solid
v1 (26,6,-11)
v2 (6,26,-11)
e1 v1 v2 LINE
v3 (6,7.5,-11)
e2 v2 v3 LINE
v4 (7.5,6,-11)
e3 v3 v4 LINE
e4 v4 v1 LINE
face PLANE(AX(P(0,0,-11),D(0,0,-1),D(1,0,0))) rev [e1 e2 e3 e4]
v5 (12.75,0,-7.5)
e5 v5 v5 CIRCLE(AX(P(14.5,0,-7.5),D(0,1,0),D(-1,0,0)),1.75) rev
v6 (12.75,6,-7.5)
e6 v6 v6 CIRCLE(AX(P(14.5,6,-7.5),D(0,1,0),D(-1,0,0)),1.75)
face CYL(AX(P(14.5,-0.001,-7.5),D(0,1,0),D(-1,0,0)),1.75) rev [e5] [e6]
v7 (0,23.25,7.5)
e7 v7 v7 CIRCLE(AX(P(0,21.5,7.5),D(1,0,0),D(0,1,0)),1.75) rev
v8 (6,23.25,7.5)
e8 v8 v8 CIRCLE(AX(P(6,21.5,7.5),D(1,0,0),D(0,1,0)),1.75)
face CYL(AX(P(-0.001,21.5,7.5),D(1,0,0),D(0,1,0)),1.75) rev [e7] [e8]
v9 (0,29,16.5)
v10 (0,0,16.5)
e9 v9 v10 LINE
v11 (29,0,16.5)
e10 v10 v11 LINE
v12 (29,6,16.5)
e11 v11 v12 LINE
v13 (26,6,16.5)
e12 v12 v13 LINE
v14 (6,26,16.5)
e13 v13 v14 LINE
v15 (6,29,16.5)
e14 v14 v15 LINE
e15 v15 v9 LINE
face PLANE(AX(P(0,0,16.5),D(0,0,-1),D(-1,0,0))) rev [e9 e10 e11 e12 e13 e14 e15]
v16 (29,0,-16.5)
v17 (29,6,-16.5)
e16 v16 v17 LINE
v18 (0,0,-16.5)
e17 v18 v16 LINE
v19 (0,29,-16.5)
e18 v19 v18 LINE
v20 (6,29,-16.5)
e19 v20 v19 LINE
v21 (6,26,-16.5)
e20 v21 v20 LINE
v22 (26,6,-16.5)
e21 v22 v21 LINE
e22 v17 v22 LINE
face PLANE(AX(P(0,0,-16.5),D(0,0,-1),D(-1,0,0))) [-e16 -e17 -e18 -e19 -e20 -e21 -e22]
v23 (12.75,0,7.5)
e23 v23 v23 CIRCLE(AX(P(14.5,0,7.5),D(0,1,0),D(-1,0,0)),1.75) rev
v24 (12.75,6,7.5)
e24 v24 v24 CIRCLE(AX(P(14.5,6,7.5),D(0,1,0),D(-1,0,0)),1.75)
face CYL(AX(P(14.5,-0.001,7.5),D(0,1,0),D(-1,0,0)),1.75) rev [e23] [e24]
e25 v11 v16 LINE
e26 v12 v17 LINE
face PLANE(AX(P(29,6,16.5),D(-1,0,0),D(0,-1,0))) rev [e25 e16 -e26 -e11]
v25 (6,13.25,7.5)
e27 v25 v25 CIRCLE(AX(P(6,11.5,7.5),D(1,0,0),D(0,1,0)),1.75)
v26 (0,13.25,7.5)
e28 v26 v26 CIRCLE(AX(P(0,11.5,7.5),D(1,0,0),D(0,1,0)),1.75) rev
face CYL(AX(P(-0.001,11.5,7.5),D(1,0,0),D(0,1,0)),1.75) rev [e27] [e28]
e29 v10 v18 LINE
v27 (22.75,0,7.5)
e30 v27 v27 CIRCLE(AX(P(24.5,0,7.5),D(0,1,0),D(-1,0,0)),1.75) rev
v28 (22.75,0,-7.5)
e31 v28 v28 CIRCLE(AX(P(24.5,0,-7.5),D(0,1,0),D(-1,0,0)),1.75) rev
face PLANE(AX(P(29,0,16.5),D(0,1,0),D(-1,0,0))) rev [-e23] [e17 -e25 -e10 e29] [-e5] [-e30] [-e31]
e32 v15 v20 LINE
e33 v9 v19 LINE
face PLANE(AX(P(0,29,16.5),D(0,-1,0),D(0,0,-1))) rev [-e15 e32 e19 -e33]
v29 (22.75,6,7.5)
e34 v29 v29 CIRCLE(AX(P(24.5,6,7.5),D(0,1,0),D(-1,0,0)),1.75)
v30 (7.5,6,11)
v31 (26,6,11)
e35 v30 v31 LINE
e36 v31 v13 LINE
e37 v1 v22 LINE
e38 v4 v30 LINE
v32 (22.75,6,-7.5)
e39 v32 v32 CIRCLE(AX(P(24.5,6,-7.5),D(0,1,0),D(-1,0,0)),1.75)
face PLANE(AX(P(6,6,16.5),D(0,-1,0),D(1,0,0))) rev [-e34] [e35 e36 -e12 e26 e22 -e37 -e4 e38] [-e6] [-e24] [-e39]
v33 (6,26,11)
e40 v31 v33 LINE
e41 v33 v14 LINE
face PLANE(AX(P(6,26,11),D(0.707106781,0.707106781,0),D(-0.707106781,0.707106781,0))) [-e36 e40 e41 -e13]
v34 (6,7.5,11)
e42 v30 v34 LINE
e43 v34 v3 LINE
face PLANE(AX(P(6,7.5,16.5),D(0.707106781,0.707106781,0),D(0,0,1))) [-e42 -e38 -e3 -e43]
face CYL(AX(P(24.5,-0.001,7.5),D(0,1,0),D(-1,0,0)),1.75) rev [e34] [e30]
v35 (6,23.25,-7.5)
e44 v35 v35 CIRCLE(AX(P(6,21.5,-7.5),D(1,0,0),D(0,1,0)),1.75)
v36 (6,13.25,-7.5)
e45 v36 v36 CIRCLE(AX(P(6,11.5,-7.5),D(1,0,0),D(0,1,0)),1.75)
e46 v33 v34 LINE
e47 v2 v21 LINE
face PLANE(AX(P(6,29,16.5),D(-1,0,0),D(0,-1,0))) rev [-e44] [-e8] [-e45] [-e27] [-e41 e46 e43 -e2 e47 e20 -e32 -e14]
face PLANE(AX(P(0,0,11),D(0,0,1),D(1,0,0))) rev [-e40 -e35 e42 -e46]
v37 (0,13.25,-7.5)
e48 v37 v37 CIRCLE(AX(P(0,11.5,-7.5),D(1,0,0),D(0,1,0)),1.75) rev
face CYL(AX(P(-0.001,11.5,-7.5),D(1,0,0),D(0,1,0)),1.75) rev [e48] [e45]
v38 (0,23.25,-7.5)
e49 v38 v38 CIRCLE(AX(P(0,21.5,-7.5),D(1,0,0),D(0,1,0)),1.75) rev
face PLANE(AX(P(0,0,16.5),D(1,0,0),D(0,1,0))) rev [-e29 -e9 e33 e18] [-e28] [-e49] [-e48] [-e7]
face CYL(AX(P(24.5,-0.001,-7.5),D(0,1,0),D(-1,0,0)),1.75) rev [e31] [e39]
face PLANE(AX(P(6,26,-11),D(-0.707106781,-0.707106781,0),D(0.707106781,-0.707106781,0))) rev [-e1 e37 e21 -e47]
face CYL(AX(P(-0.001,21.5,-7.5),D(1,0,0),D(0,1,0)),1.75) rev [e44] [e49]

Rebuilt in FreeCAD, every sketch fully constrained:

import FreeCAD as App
import Part
import Sketcher
from FreeCAD import Vector
Q = App.Units.Quantity


def edges_at(feature, points):
    """Names of the edges that pass closest to the given points."""
    edges = feature.Shape.Edges
    near = lambda p: min(range(len(edges)), key=lambda i: edges[i].distToShape(Part.Vertex(*p))[0])
    return sorted({f"Edge{near(p) + 1}" for p in points})


def add_polygon(sketch, points):
    """Adds a closed chain of lines whose ends are joined by coincident constraints."""
    first, n = sketch.GeometryCount, len(points)
    for a, b in zip(points, points[1:] + points[:1]):
        sketch.addGeometry(Part.LineSegment(App.Vector(*a, 0), App.Vector(*b, 0)), False)
    for i in range(n):
        sketch.addConstraint(Sketcher.Constraint("Coincident", first + i, 2, first + (i + 1) % n, 1))

doc = App.newDocument("Part")
body = doc.addObject("PartDesign::Body", "Body")

sketch1 = body.newObject("Sketcher::SketchObject", "Sketch")
sketch1.AttachmentSupport = (doc.getObject("XY_Plane"), [""])
sketch1.MapMode = "FlatFace"
add_polygon(sketch1, [(0, 29), (0, 0), (29, 0), (29, 6), (6, 6), (6, 29)])
sketch1.addConstraint(Sketcher.Constraint("Vertical", 0))
sketch1.addConstraint(Sketcher.Constraint("Horizontal", 1))
sketch1.addConstraint(Sketcher.Constraint("Vertical", 2))
sketch1.addConstraint(Sketcher.Constraint("Horizontal", 3))
sketch1.addConstraint(Sketcher.Constraint("Vertical", 4))
sketch1.addConstraint(Sketcher.Constraint("Horizontal", 5))
sketch1.addConstraint(Sketcher.Constraint("Coincident", 0, 2, -1, 1))
sketch1.addConstraint(Sketcher.Constraint("Equal", 1, 0))
sketch1.addConstraint(Sketcher.Constraint("Equal", 5, 2))
sketch1.addConstraint(Sketcher.Constraint("DistanceX", 1, 1, 1, 2, Q("29 mm")))
sketch1.addConstraint(Sketcher.Constraint("DistanceX", 3, 2, 3, 1, Q("23 mm")))
pad1 = body.newObject("PartDesign::Pad", "Pad")
pad1.Profile = sketch1
pad1.Length = 33
pad1.Midplane = True

sketch2 = body.newObject("Sketcher::SketchObject", "Sketch001")
sketch2.AttachmentSupport = (doc.getObject("YZ_Plane"), [""])
sketch2.MapMode = "FlatFace"
sketch2.AttachmentOffset = App.Placement(Vector(0, 0, 6), App.Rotation())
sketch2.addGeometry(Part.Circle(Vector(21.5, -7.5, 0), Vector(0, 0, 1), 1.8), False)
sketch2.addConstraint(Sketcher.Constraint("Diameter", 0, Q("3.5 mm")))
sketch2.addConstraint(Sketcher.Constraint("DistanceX", -1, 1, 0, 3, Q("21.5 mm")))
sketch2.addConstraint(Sketcher.Constraint("DistanceY", 0, 3, -1, 1, Q("7.5 mm")))
pocket1 = body.newObject("PartDesign::Pocket", "Pocket")
pocket1.Profile = sketch2
pocket1.Type = "UpToFirst"

sketch3 = body.newObject("Sketcher::SketchObject", "Sketch002")
sketch3.AttachmentSupport = (doc.getObject("YZ_Plane"), [""])
sketch3.MapMode = "FlatFace"
sketch3.AttachmentOffset = App.Placement(Vector(0, 0, 6), App.Rotation())
sketch3.addGeometry(Part.Circle(Vector(11.5, -7.5, 0), Vector(0, 0, 1), 1.8), False)
sketch3.addConstraint(Sketcher.Constraint("Diameter", 0, Q("3.5 mm")))
sketch3.addConstraint(Sketcher.Constraint("DistanceX", -1, 1, 0, 3, Q("11.5 mm")))
sketch3.addConstraint(Sketcher.Constraint("DistanceY", 0, 3, -1, 1, Q("7.5 mm")))
pocket2 = body.newObject("PartDesign::Pocket", "Pocket001")
pocket2.Profile = sketch3
pocket2.Type = "UpToFirst"

sketch4 = body.newObject("Sketcher::SketchObject", "Sketch003")
sketch4.AttachmentSupport = (doc.getObject("YZ_Plane"), [""])
sketch4.MapMode = "FlatFace"
sketch4.AttachmentOffset = App.Placement(Vector(0, 0, 6), App.Rotation())
sketch4.addGeometry(Part.Circle(Vector(11.5, 7.5, 0), Vector(0, 0, 1), 1.8), False)
sketch4.addConstraint(Sketcher.Constraint("Diameter", 0, Q("3.5 mm")))
sketch4.addConstraint(Sketcher.Constraint("DistanceX", -1, 1, 0, 3, Q("11.5 mm")))
sketch4.addConstraint(Sketcher.Constraint("DistanceY", -1, 1, 0, 3, Q("7.5 mm")))
pocket3 = body.newObject("PartDesign::Pocket", "Pocket002")
pocket3.Profile = sketch4
pocket3.Type = "UpToFirst"

sketch5 = body.newObject("Sketcher::SketchObject", "Sketch004")
sketch5.AttachmentSupport = (doc.getObject("YZ_Plane"), [""])
sketch5.MapMode = "FlatFace"
sketch5.AttachmentOffset = App.Placement(Vector(0, 0, 6), App.Rotation())
sketch5.addGeometry(Part.Circle(Vector(21.5, 7.5, 0), Vector(0, 0, 1), 1.8), False)
sketch5.addConstraint(Sketcher.Constraint("Diameter", 0, Q("3.5 mm")))
sketch5.addConstraint(Sketcher.Constraint("DistanceX", -1, 1, 0, 3, Q("21.5 mm")))
sketch5.addConstraint(Sketcher.Constraint("DistanceY", -1, 1, 0, 3, Q("7.5 mm")))
pocket4 = body.newObject("PartDesign::Pocket", "Pocket003")
pocket4.Profile = sketch5
pocket4.Type = "UpToFirst"

sketch6 = body.newObject("Sketcher::SketchObject", "Sketch005")
sketch6.AttachmentSupport = (doc.getObject("XZ_Plane"), [""])
sketch6.MapMode = "FlatFace"
sketch6.AttachmentOffset = App.Placement(Vector(0, 0, -6), App.Rotation())
sketch6.addGeometry(Part.Circle(Vector(14.5, 7.5, 0), Vector(0, 0, 1), 1.8), False)
sketch6.addConstraint(Sketcher.Constraint("Diameter", 0, Q("3.5 mm")))
sketch6.addConstraint(Sketcher.Constraint("DistanceX", -1, 1, 0, 3, Q("14.5 mm")))
sketch6.addConstraint(Sketcher.Constraint("DistanceY", -1, 1, 0, 3, Q("7.5 mm")))
pocket5 = body.newObject("PartDesign::Pocket", "Pocket004")
pocket5.Profile = sketch6
pocket5.Type = "UpToFirst"
pocket5.Reversed = True

sketch7 = body.newObject("Sketcher::SketchObject", "Sketch006")
sketch7.AttachmentSupport = (doc.getObject("XZ_Plane"), [""])
sketch7.MapMode = "FlatFace"
sketch7.AttachmentOffset = App.Placement(Vector(0, 0, -6), App.Rotation())
sketch7.addGeometry(Part.Circle(Vector(14.5, -7.5, 0), Vector(0, 0, 1), 1.8), False)
sketch7.addConstraint(Sketcher.Constraint("Diameter", 0, Q("3.5 mm")))
sketch7.addConstraint(Sketcher.Constraint("DistanceX", -1, 1, 0, 3, Q("14.5 mm")))
sketch7.addConstraint(Sketcher.Constraint("DistanceY", 0, 3, -1, 1, Q("7.5 mm")))
pocket6 = body.newObject("PartDesign::Pocket", "Pocket005")
pocket6.Profile = sketch7
pocket6.Type = "UpToFirst"
pocket6.Reversed = True

sketch8 = body.newObject("Sketcher::SketchObject", "Sketch007")
sketch8.AttachmentSupport = (doc.getObject("XZ_Plane"), [""])
sketch8.MapMode = "FlatFace"
sketch8.AttachmentOffset = App.Placement(Vector(0, 0, -6), App.Rotation())
sketch8.addGeometry(Part.Circle(Vector(24.5, -7.5, 0), Vector(0, 0, 1), 1.8), False)
sketch8.addConstraint(Sketcher.Constraint("Diameter", 0, Q("3.5 mm")))
sketch8.addConstraint(Sketcher.Constraint("DistanceX", -1, 1, 0, 3, Q("24.5 mm")))
sketch8.addConstraint(Sketcher.Constraint("DistanceY", 0, 3, -1, 1, Q("7.5 mm")))
pocket7 = body.newObject("PartDesign::Pocket", "Pocket006")
pocket7.Profile = sketch8
pocket7.Type = "UpToFirst"
pocket7.Reversed = True

sketch9 = body.newObject("Sketcher::SketchObject", "Sketch008")
sketch9.AttachmentSupport = (doc.getObject("XZ_Plane"), [""])
sketch9.MapMode = "FlatFace"
sketch9.AttachmentOffset = App.Placement(Vector(0, 0, -6), App.Rotation())
sketch9.addGeometry(Part.Circle(Vector(24.5, 7.5, 0), Vector(0, 0, 1), 1.8), False)
sketch9.addConstraint(Sketcher.Constraint("Diameter", 0, Q("3.5 mm")))
sketch9.addConstraint(Sketcher.Constraint("DistanceX", -1, 1, 0, 3, Q("24.5 mm")))
sketch9.addConstraint(Sketcher.Constraint("DistanceY", -1, 1, 0, 3, Q("7.5 mm")))
pocket8 = body.newObject("PartDesign::Pocket", "Pocket007")
pocket8.Profile = sketch9
pocket8.Type = "UpToFirst"
pocket8.Reversed = True

sketch10 = body.newObject("Sketcher::SketchObject", "Sketch009")
sketch10.AttachmentSupport = (doc.getObject("XY_Plane"), [""])
sketch10.MapMode = "FlatFace"
sketch10.AttachmentOffset = App.Placement(Vector(0, 0, 16.5), App.Rotation())
add_polygon(sketch10, [(26, 6), (6, 26), (6, 6)])
sketch10.addConstraint(Sketcher.Constraint("Vertical", 1))
sketch10.addConstraint(Sketcher.Constraint("Horizontal", 2))
sketch10.addConstraint(Sketcher.Constraint("Equal", 2, 1))
sketch10.addConstraint(Sketcher.Constraint("DistanceX", 2, 1, 2, 2, Q("20 mm")))
sketch10.addConstraint(Sketcher.Constraint("DistanceX", -1, 1, 0, 2, Q("6 mm")))
sketch10.addConstraint(Sketcher.Constraint("DistanceY", -1, 1, 0, 2, Q("26 mm")))
pad2 = body.newObject("PartDesign::Pad", "Pad001")
pad2.Profile = sketch10
pad2.Length = 5.5
pad2.Reversed = True
doc.recompute()

mirrored = body.newObject("PartDesign::Mirrored", "Mirrored")
mirrored.Originals = [pad2]
mirrored.MirrorPlane = (doc.getObject("XY_Plane"), [""])
body.Tip = mirrored
doc.recompute()

chamfer = body.newObject("PartDesign::Chamfer", "Chamfer")
chamfer.Base = (mirrored, edges_at(mirrored, [(6, 6, 0)]))
chamfer.Size = 1.5

doc.recompute()
